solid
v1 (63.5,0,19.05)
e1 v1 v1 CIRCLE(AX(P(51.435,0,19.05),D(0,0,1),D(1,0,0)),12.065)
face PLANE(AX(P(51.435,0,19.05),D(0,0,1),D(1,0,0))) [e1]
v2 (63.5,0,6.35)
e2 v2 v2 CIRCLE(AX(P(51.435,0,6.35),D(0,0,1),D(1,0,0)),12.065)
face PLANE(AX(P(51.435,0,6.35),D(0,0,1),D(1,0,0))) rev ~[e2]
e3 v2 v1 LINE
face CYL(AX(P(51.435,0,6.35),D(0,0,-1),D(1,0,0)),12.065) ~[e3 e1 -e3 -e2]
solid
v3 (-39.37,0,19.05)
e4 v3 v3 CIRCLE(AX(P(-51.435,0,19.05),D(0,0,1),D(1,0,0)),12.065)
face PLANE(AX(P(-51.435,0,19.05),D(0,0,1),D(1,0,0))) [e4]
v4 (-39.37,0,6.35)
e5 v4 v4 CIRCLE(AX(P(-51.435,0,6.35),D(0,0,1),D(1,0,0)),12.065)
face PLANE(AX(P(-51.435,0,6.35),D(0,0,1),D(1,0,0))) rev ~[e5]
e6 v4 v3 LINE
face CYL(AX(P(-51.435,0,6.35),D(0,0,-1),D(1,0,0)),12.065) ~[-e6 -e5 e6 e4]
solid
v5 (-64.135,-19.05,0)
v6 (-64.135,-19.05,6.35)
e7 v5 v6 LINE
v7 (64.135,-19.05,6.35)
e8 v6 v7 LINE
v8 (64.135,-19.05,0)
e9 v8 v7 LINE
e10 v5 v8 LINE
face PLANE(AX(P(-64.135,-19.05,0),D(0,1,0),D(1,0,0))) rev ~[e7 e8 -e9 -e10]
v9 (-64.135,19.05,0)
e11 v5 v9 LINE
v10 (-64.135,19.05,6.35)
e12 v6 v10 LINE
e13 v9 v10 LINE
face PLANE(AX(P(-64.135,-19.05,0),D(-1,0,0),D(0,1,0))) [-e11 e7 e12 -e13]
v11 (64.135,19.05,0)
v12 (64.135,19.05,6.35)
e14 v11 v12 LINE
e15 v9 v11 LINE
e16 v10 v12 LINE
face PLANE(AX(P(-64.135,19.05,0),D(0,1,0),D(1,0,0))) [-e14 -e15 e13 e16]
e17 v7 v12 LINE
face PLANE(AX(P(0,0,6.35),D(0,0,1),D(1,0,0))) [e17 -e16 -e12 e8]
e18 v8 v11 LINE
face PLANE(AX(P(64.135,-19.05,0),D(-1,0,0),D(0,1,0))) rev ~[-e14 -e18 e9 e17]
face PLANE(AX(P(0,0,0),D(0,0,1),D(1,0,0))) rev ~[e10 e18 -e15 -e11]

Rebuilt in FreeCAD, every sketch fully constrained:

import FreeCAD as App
import Part
import Sketcher
Q = App.Units.Quantity

doc = App.newDocument("Part")
body = doc.addObject("PartDesign::Body", "Body")

sketch1 = body.newObject("Sketcher::SketchObject", "Sketch")
sketch1.AttachmentSupport = (doc.getObject("XY_Plane"), [""])
sketch1.MapMode = "FlatFace"
sketch1.addGeometry([
    Part.LineSegment(App.Vector(-64, 19, 0), App.Vector(-64, -19, 0)),
    Part.LineSegment(App.Vector(-64, -19, 0), App.Vector(64, -19, 0)),
    Part.LineSegment(App.Vector(64, -19, 0), App.Vector(64, 19, 0)),
    Part.LineSegment(App.Vector(64, 19, 0), App.Vector(-64, 19, 0)),
], False)
sketch1.addConstraint([
    Sketcher.Constraint("Coincident", 0, 2, 1, 1),
    Sketcher.Constraint("Coincident", 1, 2, 2, 1),
    Sketcher.Constraint("Coincident", 2, 2, 3, 1),
    Sketcher.Constraint("Coincident", 3, 2, 0, 1),
    Sketcher.Constraint("Vertical", 0),
    Sketcher.Constraint("Horizontal", 1),
    Sketcher.Constraint("Vertical", 2),
    Sketcher.Constraint("Horizontal", 3),
    Sketcher.Constraint("Symmetric", 0, 2, 2, 2, -1, 1),
    Sketcher.Constraint("DistanceY", 0, 2, 0, 1, Q("1.5 in")),
    Sketcher.Constraint("DistanceX", 1, 1, 1, 2, Q("5.05 in")),
])
pad1 = body.newObject("PartDesign::Pad", "Pad")
pad1.Profile = sketch1
pad1.Length = Q("0.25 in")
body2 = doc.addObject("PartDesign::Body", "Body001")
body2.AllowCompound = True

sketch2 = body2.newObject("Sketcher::SketchObject", "Sketch001")
sketch2.AttachmentSupport = (doc.getObject("XY_Plane001"), [""])
sketch2.MapMode = "FlatFace"
sketch2.AttachmentOffset = App.Placement(App.Vector(0, 0, 0.25 * 25.4), App.Rotation())
sketch2.addGeometry([
    Part.Circle(App.Vector(-51, 0, 0), App.Vector(0, 0, 1), 12),
    Part.Circle(App.Vector(51, 0, 0), App.Vector(0, 0, 1), 12),
], False)
sketch2.addConstraint([
    Sketcher.Constraint("Equal", 0, 1),
    Sketcher.Constraint("Symmetric", 0, 3, 1, 3, -1, 1),
    Sketcher.Constraint("PointOnObject", 0, 3, -1),
    Sketcher.Constraint("Diameter", 0, Q("0.95 in")),
    Sketcher.Constraint("DistanceX", 0, 3, 1, 3, Q("4.05 in")),
])
pad2 = body2.newObject("PartDesign::Pad", "Pad001")
pad2.Profile = sketch2
pad2.Length = Q("0.5 in")

doc.recompute()
